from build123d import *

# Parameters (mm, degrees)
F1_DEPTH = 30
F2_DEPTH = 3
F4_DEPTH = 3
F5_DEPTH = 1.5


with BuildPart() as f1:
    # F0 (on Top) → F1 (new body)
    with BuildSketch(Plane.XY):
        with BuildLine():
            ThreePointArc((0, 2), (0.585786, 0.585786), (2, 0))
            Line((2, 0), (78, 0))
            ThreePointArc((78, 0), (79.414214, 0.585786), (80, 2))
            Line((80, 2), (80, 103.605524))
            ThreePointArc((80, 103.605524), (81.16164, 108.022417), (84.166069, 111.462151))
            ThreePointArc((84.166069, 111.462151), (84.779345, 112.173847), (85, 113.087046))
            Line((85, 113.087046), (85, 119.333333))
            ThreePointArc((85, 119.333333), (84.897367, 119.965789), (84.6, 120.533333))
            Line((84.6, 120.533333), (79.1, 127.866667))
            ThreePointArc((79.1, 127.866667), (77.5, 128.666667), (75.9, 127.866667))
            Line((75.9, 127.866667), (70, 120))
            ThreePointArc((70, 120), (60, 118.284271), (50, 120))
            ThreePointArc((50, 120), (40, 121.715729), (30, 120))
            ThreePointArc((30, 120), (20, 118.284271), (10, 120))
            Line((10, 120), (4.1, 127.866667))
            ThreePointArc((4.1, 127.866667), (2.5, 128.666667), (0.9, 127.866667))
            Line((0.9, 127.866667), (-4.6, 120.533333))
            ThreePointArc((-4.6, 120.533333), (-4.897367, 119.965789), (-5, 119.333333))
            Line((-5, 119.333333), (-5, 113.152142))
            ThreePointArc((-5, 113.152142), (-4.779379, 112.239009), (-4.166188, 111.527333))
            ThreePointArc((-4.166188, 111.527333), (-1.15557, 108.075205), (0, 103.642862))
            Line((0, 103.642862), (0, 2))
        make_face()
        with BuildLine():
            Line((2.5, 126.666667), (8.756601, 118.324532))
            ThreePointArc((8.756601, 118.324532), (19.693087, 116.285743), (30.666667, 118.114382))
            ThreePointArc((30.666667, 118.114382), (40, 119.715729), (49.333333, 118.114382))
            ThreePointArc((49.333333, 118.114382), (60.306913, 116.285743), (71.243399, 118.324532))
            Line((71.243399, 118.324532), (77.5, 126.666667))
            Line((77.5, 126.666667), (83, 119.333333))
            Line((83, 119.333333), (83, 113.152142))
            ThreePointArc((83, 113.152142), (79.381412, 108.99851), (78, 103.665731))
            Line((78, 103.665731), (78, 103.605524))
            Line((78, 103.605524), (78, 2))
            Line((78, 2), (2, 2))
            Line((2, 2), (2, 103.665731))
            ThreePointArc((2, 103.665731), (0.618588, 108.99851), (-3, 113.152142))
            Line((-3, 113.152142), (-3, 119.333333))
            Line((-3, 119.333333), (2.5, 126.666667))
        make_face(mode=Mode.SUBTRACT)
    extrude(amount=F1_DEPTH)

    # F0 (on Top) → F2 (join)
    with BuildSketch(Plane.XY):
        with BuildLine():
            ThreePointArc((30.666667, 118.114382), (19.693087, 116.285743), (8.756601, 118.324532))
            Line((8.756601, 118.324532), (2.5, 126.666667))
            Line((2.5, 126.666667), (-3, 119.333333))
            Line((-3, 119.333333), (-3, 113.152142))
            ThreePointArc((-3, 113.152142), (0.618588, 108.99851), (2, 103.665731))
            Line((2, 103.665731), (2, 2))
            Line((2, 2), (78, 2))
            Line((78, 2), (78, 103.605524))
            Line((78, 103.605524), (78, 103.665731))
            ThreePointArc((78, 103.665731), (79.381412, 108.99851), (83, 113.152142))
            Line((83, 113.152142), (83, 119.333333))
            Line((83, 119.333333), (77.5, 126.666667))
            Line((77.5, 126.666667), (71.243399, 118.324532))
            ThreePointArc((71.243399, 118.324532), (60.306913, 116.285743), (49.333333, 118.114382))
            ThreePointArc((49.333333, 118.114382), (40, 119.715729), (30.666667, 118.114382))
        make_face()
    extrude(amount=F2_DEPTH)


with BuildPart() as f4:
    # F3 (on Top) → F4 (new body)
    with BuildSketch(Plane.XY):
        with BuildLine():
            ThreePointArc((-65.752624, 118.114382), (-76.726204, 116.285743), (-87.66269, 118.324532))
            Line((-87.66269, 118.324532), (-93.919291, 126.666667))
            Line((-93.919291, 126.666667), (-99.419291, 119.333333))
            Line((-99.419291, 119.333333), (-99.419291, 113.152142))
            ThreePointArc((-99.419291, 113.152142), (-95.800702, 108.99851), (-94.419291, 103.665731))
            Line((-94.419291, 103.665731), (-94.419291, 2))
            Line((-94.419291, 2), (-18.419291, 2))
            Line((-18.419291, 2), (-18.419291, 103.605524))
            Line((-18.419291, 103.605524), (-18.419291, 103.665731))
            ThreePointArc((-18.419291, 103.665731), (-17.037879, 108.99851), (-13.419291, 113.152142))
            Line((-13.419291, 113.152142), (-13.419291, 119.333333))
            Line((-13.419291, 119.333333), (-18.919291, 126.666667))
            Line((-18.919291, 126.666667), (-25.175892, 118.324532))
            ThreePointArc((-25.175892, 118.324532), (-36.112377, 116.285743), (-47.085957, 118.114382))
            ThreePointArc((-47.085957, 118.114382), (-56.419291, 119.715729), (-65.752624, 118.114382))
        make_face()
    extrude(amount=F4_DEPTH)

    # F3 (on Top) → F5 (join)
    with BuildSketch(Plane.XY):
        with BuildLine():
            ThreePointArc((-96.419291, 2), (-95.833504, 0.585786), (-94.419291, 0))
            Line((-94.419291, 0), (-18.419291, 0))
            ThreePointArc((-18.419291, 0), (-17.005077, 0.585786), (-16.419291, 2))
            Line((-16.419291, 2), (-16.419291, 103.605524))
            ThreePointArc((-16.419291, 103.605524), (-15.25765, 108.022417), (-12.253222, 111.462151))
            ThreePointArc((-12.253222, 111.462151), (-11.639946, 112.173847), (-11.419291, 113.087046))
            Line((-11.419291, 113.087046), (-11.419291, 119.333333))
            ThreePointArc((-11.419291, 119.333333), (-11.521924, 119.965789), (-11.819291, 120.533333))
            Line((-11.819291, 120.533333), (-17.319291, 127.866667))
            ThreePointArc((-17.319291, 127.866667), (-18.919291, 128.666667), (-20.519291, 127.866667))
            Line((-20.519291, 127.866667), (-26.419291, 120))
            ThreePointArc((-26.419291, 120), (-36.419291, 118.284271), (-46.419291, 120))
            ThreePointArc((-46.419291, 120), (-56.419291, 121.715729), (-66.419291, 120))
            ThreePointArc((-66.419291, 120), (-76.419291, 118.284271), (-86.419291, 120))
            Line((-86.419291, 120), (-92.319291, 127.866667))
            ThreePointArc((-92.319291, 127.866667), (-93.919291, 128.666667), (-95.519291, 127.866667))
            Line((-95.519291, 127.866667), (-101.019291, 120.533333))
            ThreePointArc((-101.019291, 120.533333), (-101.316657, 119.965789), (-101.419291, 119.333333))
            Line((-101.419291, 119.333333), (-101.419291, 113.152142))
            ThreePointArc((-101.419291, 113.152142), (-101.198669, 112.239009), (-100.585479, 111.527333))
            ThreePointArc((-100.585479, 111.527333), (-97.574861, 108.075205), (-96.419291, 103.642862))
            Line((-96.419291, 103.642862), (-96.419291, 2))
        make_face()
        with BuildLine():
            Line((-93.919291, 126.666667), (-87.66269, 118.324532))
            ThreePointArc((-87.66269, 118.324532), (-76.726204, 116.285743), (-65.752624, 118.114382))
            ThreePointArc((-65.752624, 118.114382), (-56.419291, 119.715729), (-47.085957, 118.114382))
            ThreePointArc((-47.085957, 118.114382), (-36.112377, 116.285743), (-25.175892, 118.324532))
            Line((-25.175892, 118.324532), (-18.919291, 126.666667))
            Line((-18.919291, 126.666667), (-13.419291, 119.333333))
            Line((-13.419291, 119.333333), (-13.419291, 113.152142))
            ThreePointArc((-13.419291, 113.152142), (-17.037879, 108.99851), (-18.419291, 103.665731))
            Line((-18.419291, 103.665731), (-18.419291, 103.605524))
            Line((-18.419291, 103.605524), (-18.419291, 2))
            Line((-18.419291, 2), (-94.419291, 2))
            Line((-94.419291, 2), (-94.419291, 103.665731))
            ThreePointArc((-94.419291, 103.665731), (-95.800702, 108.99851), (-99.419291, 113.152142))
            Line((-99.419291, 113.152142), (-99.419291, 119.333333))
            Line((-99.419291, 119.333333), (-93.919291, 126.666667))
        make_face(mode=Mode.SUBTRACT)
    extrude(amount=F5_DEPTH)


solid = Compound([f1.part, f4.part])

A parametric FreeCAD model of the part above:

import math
import FreeCAD as App
import Part
import Sketcher

V = App.Vector

doc = App.newDocument("Part")
body = doc.addObject("PartDesign::Body", "Body")

sketch1 = body.newObject("Sketcher::SketchObject", "Sketch")
sketch1.AttachmentSupport = (doc.getObject("XY_Plane"), [""])
sketch1.MapMode = "FlatFace"
sketch1.addGeometry(Part.ArcOfCircle(Part.Circle(V(1.999999, 1.999999, 0), V(0, 0, 1), 1.999999), math.radians(179.999957), math.radians(270.000043)), False)
sketch1.addGeometry(Part.LineSegment(V(2, 0, 0), V(78, 0, 0)), False)
sketch1.addGeometry(Part.ArcOfCircle(Part.Circle(V(78.000001, 1.999999, 0), V(0, 0, 1), 1.999999), math.radians(-90.000043), math.radians(0.000043)), False)
sketch1.addGeometry(Part.LineSegment(V(80, 2, 0), V(80, 103.605524, 0)), False)
sketch1.addGeometry(Part.ArcOfCircle(Part.Circle(V(89.996412, 103.337676, 0), V(0, 0, 1), 10), math.radians(125.664244), math.radians(178.46516)), False)
sketch1.addGeometry(Part.ArcOfCircle(Part.Circle(V(83.000001, 113.087045, 0), V(0, 0, 1), 1.999999), math.radians(-54.335762), math.radians(0.000026)), False)
sketch1.addGeometry(Part.LineSegment(V(85, 113.087046, 0), V(85, 119.333333, 0)), False)
sketch1.addGeometry(Part.ArcOfCircle(Part.Circle(V(83.00001, 119.333336, 0), V(0, 0, 1), 1.99999), math.radians(-0.000094), math.radians(36.869991)), False)
sketch1.addGeometry(Part.LineSegment(V(84.6, 120.533333, 0), V(79.1, 127.866667, 0)), False)
sketch1.addGeometry(Part.ArcOfCircle(Part.Circle(V(77.5, 126.666667, 0), V(0, 0, 1), 2), math.radians(36.869898), math.radians(143.130102)), False)
sketch1.addGeometry(Part.LineSegment(V(75.9, 127.866667, 0), V(70, 120, 0)), False)
sketch1.addGeometry(Part.ArcOfCircle(Part.Circle(V(60, 148.284267, 0), V(0, 0, 1), 29.999996), math.radians(-109.471223), math.radians(-70.528777)), False)
sketch1.addGeometry(Part.ArcOfCircle(Part.Circle(V(40, 91.715733, 0), V(0, 0, 1), 29.999996), math.radians(70.528777), math.radians(109.471223)), False)
sketch1.addGeometry(Part.ArcOfCircle(Part.Circle(V(20, 148.284267, 0), V(0, 0, 1), 29.999996), math.radians(-109.471223), math.radians(-70.528777)), False)
sketch1.addGeometry(Part.LineSegment(V(10, 120, 0), V(4.1, 127.866667, 0)), False)
sketch1.addGeometry(Part.ArcOfCircle(Part.Circle(V(2.5, 126.666667, 0), V(0, 0, 1), 2), math.radians(36.869898), math.radians(143.130102)), False)
sketch1.addGeometry(Part.LineSegment(V(0.9, 127.866667, 0), V(-4.6, 120.533333, 0)), False)
sketch1.addGeometry(Part.ArcOfCircle(Part.Circle(V(-3.00001, 119.333336, 0), V(0, 0, 1), 1.99999), math.radians(143.130009), math.radians(180.000094)), False)
sketch1.addGeometry(Part.LineSegment(V(-5, 119.333333, 0), V(-5, 113.152142, 0)), False)
sketch1.addGeometry(Part.ArcOfCircle(Part.Circle(V(-3.000004, 113.15214, 0), V(0, 0, 1), 1.999996), math.radians(179.999946), math.radians(234.331612)), False)
sketch1.addGeometry(Part.ArcOfCircle(Part.Circle(V(-9.997132, 103.403286, 0), V(0, 0, 1), 10.000003), math.radians(1.3728), math.radians(54.331527)), False)
sketch1.addGeometry(Part.LineSegment(V(0, 103.642862, 0), V(0, 2, 0)), False)
sketch1.addGeometry(Part.LineSegment(V(-3, 119.333333, 0), V(2.5, 126.666667, 0)), False)
sketch1.addGeometry(Part.LineSegment(V(2.5, 126.666667, 0), V(8.756601, 118.324532, 0)), False)
sketch1.addGeometry(Part.ArcOfCircle(Part.Circle(V(20, 148.28427, 0), V(0, 0, 1), 31.999999), math.radians(-110.570291), math.radians(-70.528778)), False)
sketch1.addGeometry(Part.ArcOfCircle(Part.Circle(V(40, 91.715734, 0), V(0, 0, 1), 27.999995), math.radians(70.528777), math.radians(109.471223)), False)
sketch1.addGeometry(Part.ArcOfCircle(Part.Circle(V(60, 148.28427, 0), V(0, 0, 1), 31.999999), math.radians(-109.471222), math.radians(-69.429709)), False)
sketch1.addGeometry(Part.LineSegment(V(71.243399, 118.324532, 0), V(77.5, 126.666667, 0)), False)
sketch1.addGeometry(Part.LineSegment(V(77.5, 126.666667, 0), V(83, 119.333333, 0)), False)
sketch1.addGeometry(Part.LineSegment(V(83, 119.333333, 0), V(83, 113.152142, 0)), False)
sketch1.addGeometry(Part.ArcOfCircle(Part.Circle(V(89.997135, 103.403284, 0), V(0, 0, 1), 12.000005), math.radians(125.668477), math.radians(178.746809)), False)
sketch1.addGeometry(Part.LineSegment(V(78, 103.665731, 0), V(78, 2, 0)), False)
sketch1.addGeometry(Part.LineSegment(V(78, 2, 0), V(2, 2, 0)), False)
sketch1.addGeometry(Part.LineSegment(V(2, 2, 0), V(2, 103.665731, 0)), False)
sketch1.addGeometry(Part.ArcOfCircle(Part.Circle(V(-9.997135, 103.403284, 0), V(0, 0, 1), 12.000005), math.radians(1.253191), math.radians(54.331523)), False)
sketch1.addGeometry(Part.LineSegment(V(-3, 113.152142, 0), V(-3, 119.333333, 0)), False)
sketch1.addConstraint(Sketcher.Constraint("Tangent", 0, 2, 1, 1))
sketch1.addConstraint(Sketcher.Constraint("Tangent", 1, 2, 2, 1))
sketch1.addConstraint(Sketcher.Constraint("Tangent", 2, 2, 3, 1))
sketch1.addConstraint(Sketcher.Constraint("Coincident", 3, 2, 4, 2))
sketch1.addConstraint(Sketcher.Constraint("Tangent", 4, 1, 5, 1))
sketch1.addConstraint(Sketcher.Constraint("Tangent", 5, 2, 6, 1))
sketch1.addConstraint(Sketcher.Constraint("Tangent", 6, 2, 7, 1))
sketch1.addConstraint(Sketcher.Constraint("Tangent", 7, 2, 8, 1))
sketch1.addConstraint(Sketcher.Constraint("Tangent", 8, 2, 9, 1))
sketch1.addConstraint(Sketcher.Constraint("Tangent", 9, 2, 10, 1))
sketch1.addConstraint(Sketcher.Constraint("Coincident", 10, 2, 11, 2))
sketch1.addConstraint(Sketcher.Constraint("Tangent", 11, 1, 12, 1))
sketch1.addConstraint(Sketcher.Constraint("Tangent", 12, 2, 13, 2))
sketch1.addConstraint(Sketcher.Constraint("Coincident", 13, 1, 14, 1))
sketch1.addConstraint(Sketcher.Constraint("Tangent", 14, 2, 15, 1))
sketch1.addConstraint(Sketcher.Constraint("Tangent", 15, 2, 16, 1))
sketch1.addConstraint(Sketcher.Constraint("Tangent", 16, 2, 17, 1))
sketch1.addConstraint(Sketcher.Constraint("Tangent", 17, 2, 18, 1))
sketch1.addConstraint(Sketcher.Constraint("Tangent", 18, 2, 19, 1))
sketch1.addConstraint(Sketcher.Constraint("Tangent", 19, 2, 20, 2))
sketch1.addConstraint(Sketcher.Constraint("Coincident", 20, 1, 21, 1))
sketch1.addConstraint(Sketcher.Constraint("Tangent", 21, 2, 0, 1))
sketch1.addConstraint(Sketcher.Constraint("Coincident", 22, 2, 23, 1))
sketch1.addConstraint(Sketcher.Constraint("Coincident", 23, 2, 24, 1))
sketch1.addConstraint(Sketcher.Constraint("Tangent", 24, 2, 25, 2))
sketch1.addConstraint(Sketcher.Constraint("Tangent", 25, 1, 26, 1))
sketch1.addConstraint(Sketcher.Constraint("Coincident", 26, 2, 27, 1))
sketch1.addConstraint(Sketcher.Constraint("Coincident", 27, 2, 28, 1))
sketch1.addConstraint(Sketcher.Constraint("Coincident", 28, 2, 29, 1))
sketch1.addConstraint(Sketcher.Constraint("Coincident", 29, 2, 30, 1))
sketch1.addConstraint(Sketcher.Constraint("Coincident", 30, 2, 31, 1))
sketch1.addConstraint(Sketcher.Constraint("Coincident", 31, 2, 32, 1))
sketch1.addConstraint(Sketcher.Constraint("Coincident", 32, 2, 33, 1))
sketch1.addConstraint(Sketcher.Constraint("Coincident", 33, 2, 34, 1))
sketch1.addConstraint(Sketcher.Constraint("Coincident", 34, 2, 35, 1))
sketch1.addConstraint(Sketcher.Constraint("Coincident", 35, 2, 22, 1))
sketch1.addConstraint(Sketcher.Constraint("Horizontal", 1))
sketch1.addConstraint(Sketcher.Constraint("Vertical", 3))
sketch1.addConstraint(Sketcher.Constraint("Vertical", 6))
sketch1.addConstraint(Sketcher.Constraint("Vertical", 18))
sketch1.addConstraint(Sketcher.Constraint("Vertical", 21))
sketch1.addConstraint(Sketcher.Constraint("Vertical", 29))
sketch1.addConstraint(Sketcher.Constraint("Vertical", 31))
sketch1.addConstraint(Sketcher.Constraint("Horizontal", 32))
sketch1.addConstraint(Sketcher.Constraint("Vertical", 33))
sketch1.addConstraint(Sketcher.Constraint("Vertical", 35))
sketch1.addConstraint(Sketcher.Constraint("Coincident", 24, 3, 13, 3))
sketch1.addConstraint(Sketcher.Constraint("Coincident", 25, 3, 12, 3))
sketch1.addConstraint(Sketcher.Constraint("Coincident", 26, 3, 11, 3))
sketch1.addConstraint(Sketcher.Constraint("Coincident", 34, 3, 20, 3))
sketch1.addConstraint(Sketcher.Constraint("Coincident", 22, 2, 15, 3))
sketch1.addConstraint(Sketcher.Constraint("Coincident", 27, 2, 9, 3))
sketch1.addConstraint(Sketcher.Constraint("Coincident", 31, 2, 2, 3))
sketch1.addConstraint(Sketcher.Constraint("Coincident", 32, 2, 0, 3))
sketch1.addConstraint(Sketcher.Constraint("Coincident", 34, 2, 19, 3))
sketch1.addConstraint(Sketcher.Constraint("Equal", 2, 5))
sketch1.addConstraint(Sketcher.Constraint("Equal", 5, 9))
sketch1.addConstraint(Sketcher.Constraint("Equal", 11, 12))
sketch1.addConstraint(Sketcher.Constraint("Equal", 12, 13))
sketch1.addConstraint(Sketcher.Constraint("Equal", 9, 15))
sketch1.addConstraint(Sketcher.Constraint("Equal", 7, 17))
sketch1.addConstraint(Sketcher.Constraint("Equal", 30, 34))
sketch1.addConstraint(Sketcher.Constraint("PointOnObject", 0, 2, -1))
sketch1.addConstraint(Sketcher.Constraint("PointOnObject", 20, 1, -2))
sketch1.addConstraint(Sketcher.Constraint("Parallel", 8, 14))
sketch1.addConstraint(Sketcher.Constraint("Parallel", 10, 16))
sketch1.addConstraint(Sketcher.Constraint("Parallel", 16, 22))
sketch1.addConstraint(Sketcher.Constraint("Parallel", 14, 23))
sketch1.addConstraint(Sketcher.Constraint("Parallel", 22, 27))
sketch1.addConstraint(Sketcher.Constraint("Parallel", 23, 28))
sketch1.addConstraint(Sketcher.Constraint("Horizontal", 11, 3, 13, 3))
sketch1.addConstraint(Sketcher.Constraint("Horizontal", 9, 3, 15, 3))
sketch1.addConstraint(Sketcher.Constraint("Horizontal", 7, 3, 17, 3))
sketch1.addConstraint(Sketcher.Constraint("Horizontal", 20, 3, 30, 3))
sketch1.addConstraint(Sketcher.Constraint("Horizontal", 8, 2, 9, 2))
sketch1.addConstraint(Sketcher.Constraint("Horizontal", 10, 2, 11, 1))
sketch1.addConstraint(Sketcher.Constraint("Horizontal", 12, 2, 13, 1))
sketch1.addConstraint(Sketcher.Constraint("Horizontal", 17, 2, 28, 2))
sketch1.addConstraint(Sketcher.Constraint("Horizontal", 18, 2, 29, 2))
sketch1.addConstraint(Sketcher.Constraint("Horizontal", 30, 2, 33, 2))
sketch1.addConstraint(Sketcher.Constraint("Horizontal", 28, 2, 35, 2))
sketch1.addConstraint(Sketcher.Constraint("Vertical", 5, 3, 28, 2))
sketch1.addConstraint(Sketcher.Constraint("Radius", 0, 1.999999))
sketch1.addConstraint(Sketcher.Constraint("Radius", 4, 10.0))
sketch1.addConstraint(Sketcher.Constraint("Radius", 24, 31.999999))
sketch1.addConstraint(Sketcher.Constraint("DistanceX", 1, 1, 1, 2, 76.0))
sketch1.addConstraint(Sketcher.Constraint("DistanceX", -1, 1, 5, 3, 83.000001))
sketch1.addConstraint(Sketcher.Constraint("DistanceX", -1, 1, 11, 3, 60.0))
sketch1.addConstraint(Sketcher.Constraint("DistanceY", -1, 1, 10, 2, 120.0))
sketch1.addConstraint(Sketcher.Constraint("DistanceX", 15, 3, 9, 3, 75.0))
sketch1.addConstraint(Sketcher.Constraint("DistanceX", -1, 1, 7, 2, 84.6))
sketch1.addConstraint(Sketcher.Constraint("Radius", 11, 29.999996))
sketch1.addConstraint(Sketcher.Constraint("Radius", 20, 10.000003))
sketch1.addConstraint(Sketcher.Constraint("DistanceY", 19, 2, 17, 2, 7.806))
sketch1.addConstraint(Sketcher.Constraint("DistanceY", 21, 2, 21, 1, 101.642862))
sketch1.addConstraint(Sketcher.Constraint("DistanceY", 3, 1, 3, 2, 101.605524))
sketch1.addConstraint(Sketcher.Constraint("DistanceY", 6, 1, 6, 2, 6.246287))
pad1 = body.newObject("PartDesign::Pad", "Pad")
pad1.Profile = sketch1
pad1.Length = 30

sketch2 = body.newObject("Sketcher::SketchObject", "Sketch001")
sketch2.AttachmentSupport = (doc.getObject("XY_Plane"), [""])
sketch2.MapMode = "FlatFace"
sketch2.addGeometry(Part.ArcOfCircle(Part.Circle(V(20, 148.28427, 0), V(0, 0, 1), 31.999999), math.radians(-110.570291), math.radians(-70.528778)), False)
sketch2.addGeometry(Part.LineSegment(V(8.756601, 118.324532, 0), V(2.5, 126.666667, 0)), False)
sketch2.addGeometry(Part.LineSegment(V(2.5, 126.666667, 0), V(-3, 119.333333, 0)), False)
sketch2.addGeometry(Part.LineSegment(V(-3, 119.333333, 0), V(-3, 113.152142, 0)), False)
sketch2.addGeometry(Part.ArcOfCircle(Part.Circle(V(-9.997135, 103.403284, 0), V(0, 0, 1), 12.000005), math.radians(1.253191), math.radians(54.331523)), False)
sketch2.addGeometry(Part.LineSegment(V(2, 103.665731, 0), V(2, 2, 0)), False)
sketch2.addGeometry(Part.LineSegment(V(2, 2, 0), V(78, 2, 0)), False)
sketch2.addGeometry(Part.LineSegment(V(78, 2, 0), V(78, 103.665731, 0)), False)
sketch2.addGeometry(Part.ArcOfCircle(Part.Circle(V(89.997135, 103.403284, 0), V(0, 0, 1), 12.000005), math.radians(125.668477), math.radians(178.746809)), False)
sketch2.addGeometry(Part.LineSegment(V(83, 113.152142, 0), V(83, 119.333333, 0)), False)
sketch2.addGeometry(Part.LineSegment(V(83, 119.333333, 0), V(77.5, 126.666667, 0)), False)
sketch2.addGeometry(Part.LineSegment(V(77.5, 126.666667, 0), V(71.243399, 118.324532, 0)), False)
sketch2.addGeometry(Part.ArcOfCircle(Part.Circle(V(60, 148.28427, 0), V(0, 0, 1), 31.999999), math.radians(-109.471222), math.radians(-69.429709)), False)
sketch2.addGeometry(Part.ArcOfCircle(Part.Circle(V(40, 91.715734, 0), V(0, 0, 1), 27.999995), math.radians(70.528777), math.radians(109.471223)), False)
sketch2.addConstraint(Sketcher.Constraint("Coincident", 0, 1, 1, 1))
sketch2.addConstraint(Sketcher.Constraint("Coincident", 1, 2, 2, 1))
sketch2.addConstraint(Sketcher.Constraint("Coincident", 2, 2, 3, 1))
sketch2.addConstraint(Sketcher.Constraint("Coincident", 3, 2, 4, 2))
sketch2.addConstraint(Sketcher.Constraint("Coincident", 4, 1, 5, 1))
sketch2.addConstraint(Sketcher.Constraint("Coincident", 5, 2, 6, 1))
sketch2.addConstraint(Sketcher.Constraint("Coincident", 6, 2, 7, 1))
sketch2.addConstraint(Sketcher.Constraint("Coincident", 7, 2, 8, 2))
sketch2.addConstraint(Sketcher.Constraint("Coincident", 8, 1, 9, 1))
sketch2.addConstraint(Sketcher.Constraint("Coincident", 9, 2, 10, 1))
sketch2.addConstraint(Sketcher.Constraint("Coincident", 10, 2, 11, 1))
sketch2.addConstraint(Sketcher.Constraint("Coincident", 11, 2, 12, 2))
sketch2.addConstraint(Sketcher.Constraint("Tangent", 12, 1, 13, 1))
sketch2.addConstraint(Sketcher.Constraint("Tangent", 13, 2, 0, 2))
sketch2.addConstraint(Sketcher.Constraint("Vertical", 3))
sketch2.addConstraint(Sketcher.Constraint("Vertical", 5))
sketch2.addConstraint(Sketcher.Constraint("Horizontal", 6))
sketch2.addConstraint(Sketcher.Constraint("Vertical", 7))
sketch2.addConstraint(Sketcher.Constraint("Vertical", 9))
sketch2.addConstraint(Sketcher.Constraint("Equal", 4, 8))
sketch2.addConstraint(Sketcher.Constraint("Equal", 0, 12))
sketch2.addConstraint(Sketcher.Constraint("Parallel", 1, 10))
sketch2.addConstraint(Sketcher.Constraint("Parallel", 2, 11))
sketch2.addConstraint(Sketcher.Constraint("Horizontal", 4, 3, 8, 3))
sketch2.addConstraint(Sketcher.Constraint("Horizontal", 0, 3, 12, 3))
sketch2.addConstraint(Sketcher.Constraint("Horizontal", 4, 1, 7, 2))
sketch2.addConstraint(Sketcher.Constraint("Horizontal", 3, 2, 8, 1))
sketch2.addConstraint(Sketcher.Constraint("Horizontal", 2, 2, 9, 2))
sketch2.addConstraint(Sketcher.Constraint("Horizontal", 1, 2, 10, 2))
sketch2.addConstraint(Sketcher.Constraint("Horizontal", 0, 1, 11, 2))
sketch2.addConstraint(Sketcher.Constraint("Equal", 2, 10))
sketch2.addConstraint(Sketcher.Constraint("Radius", 0, 31.999999))
sketch2.addConstraint(Sketcher.Constraint("DistanceX", 6, 1, 6, 2, 76.0))
sketch2.addConstraint(Sketcher.Constraint("DistanceX", -1, 1, 0, 3, 20.0))
sketch2.addConstraint(Sketcher.Constraint("DistanceX", -1, 1, 12, 3, 60.0))
sketch2.addConstraint(Sketcher.Constraint("DistanceX", 2, 2, -1, 1, 3.0))
sketch2.addConstraint(Sketcher.Constraint("DistanceY", -1, 1, 5, 2, 2.0))
sketch2.addConstraint(Sketcher.Constraint("DistanceX", -1, 1, 1, 2, 2.5))
sketch2.addConstraint(Sketcher.Constraint("Radius", 4, 12.000005))
sketch2.addConstraint(Sketcher.Constraint("Radius", 13, 27.999995))
sketch2.addConstraint(Sketcher.Constraint("DistanceY", 3, 2, 3, 1, 6.181191))
sketch2.addConstraint(Sketcher.Constraint("DistanceY", 5, 2, 5, 1, 101.665731))
sketch2.addConstraint(Sketcher.Constraint("DistanceX", -1, 1, 0, 1, 8.756601))
sketch2.addConstraint(Sketcher.Constraint("DistanceY", 0, 1, 2, 2, 1.008801))
sketch2.addConstraint(Sketcher.Constraint("DistanceY", 4, 1, 0, 1, 14.658801))
pad2 = body.newObject("PartDesign::Pad", "Pad001")
pad2.Profile = sketch2
pad2.Length = 3
body2 = doc.addObject("PartDesign::Body", "Body001")

sketch3 = body2.newObject("Sketcher::SketchObject", "Sketch002")
sketch3.AttachmentSupport = (doc.getObject("XY_Plane001"), [""])
sketch3.MapMode = "FlatFace"
sketch3.addGeometry(Part.ArcOfCircle(Part.Circle(V(-76.419291, 148.28427, 0), V(0, 0, 1), 31.999999), math.radians(-110.570291), math.radians(-70.528778)), False)
sketch3.addGeometry(Part.LineSegment(V(-87.66269, 118.324532, 0), V(-93.919291, 126.666667, 0)), False)
sketch3.addGeometry(Part.LineSegment(V(-93.919291, 126.666667, 0), V(-99.419291, 119.333333, 0)), False)
sketch3.addGeometry(Part.LineSegment(V(-99.419291, 119.333333, 0), V(-99.419291, 113.152142, 0)), False)
sketch3.addGeometry(Part.ArcOfCircle(Part.Circle(V(-106.416419, 103.403288, 0), V(0, 0, 1), 11.999998), math.radians(1.253173), math.radians(54.331541)), False)
sketch3.addGeometry(Part.LineSegment(V(-94.419291, 103.665731, 0), V(-94.419291, 2, 0)), False)
sketch3.addGeometry(Part.LineSegment(V(-94.419291, 2, 0), V(-18.419291, 2, 0)), False)
sketch3.addGeometry(Part.LineSegment(V(-18.419291, 2, 0), V(-18.419291, 103.665731, 0)), False)
sketch3.addGeometry(Part.ArcOfCircle(Part.Circle(V(-6.422156, 103.403284, 0), V(0, 0, 1), 12.000005), math.radians(125.668477), math.radians(178.746809)), False)
sketch3.addGeometry(Part.LineSegment(V(-13.419291, 113.152142, 0), V(-13.419291, 119.333333, 0)), False)
sketch3.addGeometry(Part.LineSegment(V(-13.419291, 119.333333, 0), V(-18.919291, 126.666667, 0)), False)
sketch3.addGeometry(Part.LineSegment(V(-18.919291, 126.666667, 0), V(-25.175892, 118.324532, 0)), False)
sketch3.addGeometry(Part.ArcOfCircle(Part.Circle(V(-36.419291, 148.284267, 0), V(0, 0, 1), 31.999996), math.radians(-109.471223), math.radians(-69.429708)), False)
sketch3.addGeometry(Part.ArcOfCircle(Part.Circle(V(-56.419291, 91.715731, 0), V(0, 0, 1), 27.999998), math.radians(70.528778), math.radians(109.471222)), False)
sketch3.addConstraint(Sketcher.Constraint("Coincident", 0, 1, 1, 1))
sketch3.addConstraint(Sketcher.Constraint("Coincident", 1, 2, 2, 1))
sketch3.addConstraint(Sketcher.Constraint("Coincident", 2, 2, 3, 1))
sketch3.addConstraint(Sketcher.Constraint("Coincident", 3, 2, 4, 2))
sketch3.addConstraint(Sketcher.Constraint("Coincident", 4, 1, 5, 1))
sketch3.addConstraint(Sketcher.Constraint("Coincident", 5, 2, 6, 1))
sketch3.addConstraint(Sketcher.Constraint("Coincident", 6, 2, 7, 1))
sketch3.addConstraint(Sketcher.Constraint("Coincident", 7, 2, 8, 2))
sketch3.addConstraint(Sketcher.Constraint("Coincident", 8, 1, 9, 1))
sketch3.addConstraint(Sketcher.Constraint("Coincident", 9, 2, 10, 1))
sketch3.addConstraint(Sketcher.Constraint("Coincident", 10, 2, 11, 1))
sketch3.addConstraint(Sketcher.Constraint("Coincident", 11, 2, 12, 2))
sketch3.addConstraint(Sketcher.Constraint("Tangent", 12, 1, 13, 1))
sketch3.addConstraint(Sketcher.Constraint("Tangent", 13, 2, 0, 2))
sketch3.addConstraint(Sketcher.Constraint("Vertical", 3))
sketch3.addConstraint(Sketcher.Constraint("Vertical", 5))
sketch3.addConstraint(Sketcher.Constraint("Horizontal", 6))
sketch3.addConstraint(Sketcher.Constraint("Vertical", 7))
sketch3.addConstraint(Sketcher.Constraint("Vertical", 9))
sketch3.addConstraint(Sketcher.Constraint("Parallel", 1, 10))
sketch3.addConstraint(Sketcher.Constraint("Parallel", 2, 11))
sketch3.addConstraint(Sketcher.Constraint("Horizontal", 4, 1, 7, 2))
sketch3.addConstraint(Sketcher.Constraint("Horizontal", 3, 2, 8, 1))
sketch3.addConstraint(Sketcher.Constraint("Horizontal", 2, 2, 9, 2))
sketch3.addConstraint(Sketcher.Constraint("Horizontal", 1, 2, 10, 2))
sketch3.addConstraint(Sketcher.Constraint("Horizontal", 0, 1, 11, 2))
sketch3.addConstraint(Sketcher.Constraint("Horizontal", 12, 1, 13, 2))
sketch3.addConstraint(Sketcher.Constraint("Equal", 2, 10))
sketch3.addConstraint(Sketcher.Constraint("Radius", 0, 31.999999))
sketch3.addConstraint(Sketcher.Constraint("Radius", 13, 27.999998))
sketch3.addConstraint(Sketcher.Constraint("DistanceX", 6, 1, 6, 2, 76.0))
sketch3.addConstraint(Sketcher.Constraint("DistanceY", -1, 1, 5, 2, 2.0))
sketch3.addConstraint(Sketcher.Constraint("DistanceX", 0, 3, 12, 3, 40.0))
sketch3.addConstraint(Sketcher.Constraint("DistanceX", 13, 3, 12, 3, 20.0))
sketch3.addConstraint(Sketcher.Constraint("DistanceX", 2, 2, 0, 3, 23.0))
sketch3.addConstraint(Sketcher.Constraint("DistanceX", 3, 2, 4, 1, 5.0))
sketch3.addConstraint(Sketcher.Constraint("DistanceX", 1, 2, 0, 3, 17.5))
sketch3.addConstraint(Sketcher.Constraint("DistanceY", 13, 3, 7, 2, 11.95))
sketch3.addConstraint(Sketcher.Constraint("Radius", 4, 11.999998))
sketch3.addConstraint(Sketcher.Constraint("Radius", 8, 12.000005))
sketch3.addConstraint(Sketcher.Constraint("DistanceY", 3, 2, 3, 1, 6.181191))
sketch3.addConstraint(Sketcher.Constraint("DistanceY", 5, 2, 5, 1, 101.665731))
sketch3.addConstraint(Sketcher.Constraint("DistanceX", 0, 1, 0, 3, 11.243399))
sketch3.addConstraint(Sketcher.Constraint("DistanceY", 1, 2, 12, 3, 21.6176))
sketch3.addConstraint(Sketcher.Constraint("DistanceX", 0, 3, -1, 1, 76.419291))
pad3 = body2.newObject("PartDesign::Pad", "Pad002")
pad3.Profile = sketch3
pad3.Length = 3

sketch4 = body2.newObject("Sketcher::SketchObject", "Sketch003")
sketch4.AttachmentSupport = (doc.getObject("XY_Plane001"), [""])
sketch4.MapMode = "FlatFace"
sketch4.addGeometry(Part.ArcOfCircle(Part.Circle(V(-94.419291, 2, 0), V(0, 0, 1), 2), math.radians(-179.999994), math.radians(-90.000006)), False)
sketch4.addGeometry(Part.LineSegment(V(-94.419291, 0, 0), V(-18.419291, 0, 0)), False)
sketch4.addGeometry(Part.ArcOfCircle(Part.Circle(V(-18.41929, 1.999999, 0), V(0, 0, 1), 1.999999), math.radians(-90.000043), math.radians(0.000043)), False)
sketch4.addGeometry(Part.LineSegment(V(-16.419291, 2, 0), V(-16.419291, 103.605524, 0)), False)
sketch4.addGeometry(Part.ArcOfCircle(Part.Circle(V(-6.422872, 103.337672, 0), V(0, 0, 1), 10.000007), math.radians(125.664266), math.radians(178.465138)), False)
sketch4.addGeometry(Part.ArcOfCircle(Part.Circle(V(-13.41929, 113.087045, 0), V(0, 0, 1), 1.999999), math.radians(-54.335762), math.radians(0.000026)), False)
sketch4.addGeometry(Part.LineSegment(V(-11.419291, 113.087046, 0), V(-11.419291, 119.333333, 0)), False)
sketch4.addGeometry(Part.ArcOfCircle(Part.Circle(V(-13.419281, 119.333336, 0), V(0, 0, 1), 1.99999), math.radians(-0.000094), math.radians(36.869991)), False)
sketch4.addGeometry(Part.LineSegment(V(-11.819291, 120.533333, 0), V(-17.319291, 127.866667, 0)), False)
sketch4.addGeometry(Part.ArcOfCircle(Part.Circle(V(-18.919291, 126.666667, 0), V(0, 0, 1), 2), math.radians(36.869898), math.radians(143.130102)), False)
sketch4.addGeometry(Part.LineSegment(V(-20.519291, 127.866667, 0), V(-26.419291, 120, 0)), False)
sketch4.addGeometry(Part.ArcOfCircle(Part.Circle(V(-36.419291, 148.284267, 0), V(0, 0, 1), 29.999996), math.radians(-109.471223), math.radians(-70.528777)), False)
sketch4.addGeometry(Part.ArcOfCircle(Part.Circle(V(-56.419291, 91.715733, 0), V(0, 0, 1), 29.999996), math.radians(70.528777), math.radians(109.471223)), False)
sketch4.addGeometry(Part.ArcOfCircle(Part.Circle(V(-76.419291, 148.284267, 0), V(0, 0, 1), 29.999996), math.radians(-109.471223), math.radians(-70.528777)), False)
sketch4.addGeometry(Part.LineSegment(V(-86.419291, 120, 0), V(-92.319291, 127.866667, 0)), False)
sketch4.addGeometry(Part.ArcOfCircle(Part.Circle(V(-93.919291, 126.666667, 0), V(0, 0, 1), 2), math.radians(36.869898), math.radians(143.130102)), False)
sketch4.addGeometry(Part.LineSegment(V(-95.519291, 127.866667, 0), V(-101.019291, 120.533333, 0)), False)
sketch4.addGeometry(Part.ArcOfCircle(Part.Circle(V(-99.419283, 119.33333, 0), V(0, 0, 1), 2.000008), math.radians(143.130176), math.radians(179.999926)), False)
sketch4.addGeometry(Part.LineSegment(V(-101.419291, 119.333333, 0), V(-101.419291, 113.152142, 0)), False)
sketch4.addGeometry(Part.ArcOfCircle(Part.Circle(V(-99.419288, 113.152144, 0), V(0, 0, 1), 2.000003), math.radians(-179.999949), math.radians(-125.668494)), False)
sketch4.addGeometry(Part.ArcOfCircle(Part.Circle(V(-106.416423, 103.403286, 0), V(0, 0, 1), 10.000003), math.radians(1.3728), math.radians(54.331527)), False)
sketch4.addGeometry(Part.LineSegment(V(-96.419291, 103.642862, 0), V(-96.419291, 2, 0)), False)
sketch4.addGeometry(Part.LineSegment(V(-99.419291, 119.333333, 0), V(-93.919291, 126.666667, 0)), False)
sketch4.addGeometry(Part.LineSegment(V(-93.919291, 126.666667, 0), V(-87.66269, 118.324532, 0)), False)
sketch4.addGeometry(Part.ArcOfCircle(Part.Circle(V(-76.419291, 148.28427, 0), V(0, 0, 1), 31.999999), math.radians(-110.570291), math.radians(-70.528778)), False)
sketch4.addGeometry(Part.ArcOfCircle(Part.Circle(V(-56.419291, 91.715731, 0), V(0, 0, 1), 27.999998), math.radians(70.528778), math.radians(109.471222)), False)
sketch4.addGeometry(Part.ArcOfCircle(Part.Circle(V(-36.419291, 148.284267, 0), V(0, 0, 1), 31.999996), math.radians(-109.471223), math.radians(-69.429708)), False)
sketch4.addGeometry(Part.LineSegment(V(-25.175892, 118.324532, 0), V(-18.919291, 126.666667, 0)), False)
sketch4.addGeometry(Part.LineSegment(V(-18.919291, 126.666667, 0), V(-13.419291, 119.333333, 0)), False)
sketch4.addGeometry(Part.LineSegment(V(-13.419291, 119.333333, 0), V(-13.419291, 113.152142, 0)), False)
sketch4.addGeometry(Part.ArcOfCircle(Part.Circle(V(-6.422156, 103.403284, 0), V(0, 0, 1), 12.000005), math.radians(125.668477), math.radians(178.746809)), False)
sketch4.addGeometry(Part.LineSegment(V(-18.419291, 103.665731, 0), V(-18.419291, 2, 0)), False)
sketch4.addGeometry(Part.LineSegment(V(-18.419291, 2, 0), V(-94.419291, 2, 0)), False)
sketch4.addGeometry(Part.LineSegment(V(-94.419291, 2, 0), V(-94.419291, 103.665731, 0)), False)
sketch4.addGeometry(Part.ArcOfCircle(Part.Circle(V(-106.416419, 103.403288, 0), V(0, 0, 1), 11.999998), math.radians(1.253173), math.radians(54.331541)), False)
sketch4.addGeometry(Part.LineSegment(V(-99.419291, 113.152142, 0), V(-99.419291, 119.333333, 0)), False)
sketch4.addConstraint(Sketcher.Constraint("Tangent", 0, 2, 1, 1))
sketch4.addConstraint(Sketcher.Constraint("Tangent", 1, 2, 2, 1))
sketch4.addConstraint(Sketcher.Constraint("Tangent", 2, 2, 3, 1))
sketch4.addConstraint(Sketcher.Constraint("Coincident", 3, 2, 4, 2))
sketch4.addConstraint(Sketcher.Constraint("Tangent", 4, 1, 5, 1))
sketch4.addConstraint(Sketcher.Constraint("Tangent", 5, 2, 6, 1))
sketch4.addConstraint(Sketcher.Constraint("Tangent", 6, 2, 7, 1))
sketch4.addConstraint(Sketcher.Constraint("Tangent", 7, 2, 8, 1))
sketch4.addConstraint(Sketcher.Constraint("Tangent", 8, 2, 9, 1))
sketch4.addConstraint(Sketcher.Constraint("Tangent", 9, 2, 10, 1))
sketch4.addConstraint(Sketcher.Constraint("Coincident", 10, 2, 11, 2))
sketch4.addConstraint(Sketcher.Constraint("Tangent", 11, 1, 12, 1))
sketch4.addConstraint(Sketcher.Constraint("Tangent", 12, 2, 13, 2))
sketch4.addConstraint(Sketcher.Constraint("Coincident", 13, 1, 14, 1))
sketch4.addConstraint(Sketcher.Constraint("Tangent", 14, 2, 15, 1))
sketch4.addConstraint(Sketcher.Constraint("Tangent", 15, 2, 16, 1))
sketch4.addConstraint(Sketcher.Constraint("Tangent", 16, 2, 17, 1))
sketch4.addConstraint(Sketcher.Constraint("Tangent", 17, 2, 18, 1))
sketch4.addConstraint(Sketcher.Constraint("Tangent", 18, 2, 19, 1))
sketch4.addConstraint(Sketcher.Constraint("Tangent", 19, 2, 20, 2))
sketch4.addConstraint(Sketcher.Constraint("Coincident", 20, 1, 21, 1))
sketch4.addConstraint(Sketcher.Constraint("Tangent", 21, 2, 0, 1))
sketch4.addConstraint(Sketcher.Constraint("Coincident", 22, 2, 23, 1))
sketch4.addConstraint(Sketcher.Constraint("Coincident", 23, 2, 24, 1))
sketch4.addConstraint(Sketcher.Constraint("Tangent", 24, 2, 25, 2))
sketch4.addConstraint(Sketcher.Constraint("Tangent", 25, 1, 26, 1))
sketch4.addConstraint(Sketcher.Constraint("Coincident", 26, 2, 27, 1))
sketch4.addConstraint(Sketcher.Constraint("Coincident", 27, 2, 28, 1))
sketch4.addConstraint(Sketcher.Constraint("Coincident", 28, 2, 29, 1))
sketch4.addConstraint(Sketcher.Constraint("Coincident", 29, 2, 30, 1))
sketch4.addConstraint(Sketcher.Constraint("Coincident", 30, 2, 31, 1))
sketch4.addConstraint(Sketcher.Constraint("Coincident", 31, 2, 32, 1))
sketch4.addConstraint(Sketcher.Constraint("Coincident", 32, 2, 33, 1))
sketch4.addConstraint(Sketcher.Constraint("Coincident", 33, 2, 34, 1))
sketch4.addConstraint(Sketcher.Constraint("Coincident", 34, 2, 35, 1))
sketch4.addConstraint(Sketcher.Constraint("Coincident", 35, 2, 22, 1))
sketch4.addConstraint(Sketcher.Constraint("Horizontal", 1))
sketch4.addConstraint(Sketcher.Constraint("Vertical", 3))
sketch4.addConstraint(Sketcher.Constraint("Vertical", 6))
sketch4.addConstraint(Sketcher.Constraint("Vertical", 18))
sketch4.addConstraint(Sketcher.Constraint("Vertical", 21))
sketch4.addConstraint(Sketcher.Constraint("Vertical", 29))
sketch4.addConstraint(Sketcher.Constraint("Vertical", 31))
sketch4.addConstraint(Sketcher.Constraint("Horizontal", 32))
sketch4.addConstraint(Sketcher.Constraint("Vertical", 33))
sketch4.addConstraint(Sketcher.Constraint("Vertical", 35))
sketch4.addConstraint(Sketcher.Constraint("Coincident", 24, 3, 13, 3))
sketch4.addConstraint(Sketcher.Constraint("Coincident", 25, 3, 12, 3))
sketch4.addConstraint(Sketcher.Constraint("Coincident", 26, 3, 11, 3))
sketch4.addConstraint(Sketcher.Constraint("Coincident", 34, 3, 20, 3))
sketch4.addConstraint(Sketcher.Constraint("Coincident", 22, 2, 15, 3))
sketch4.addConstraint(Sketcher.Constraint("Coincident", 27, 2, 9, 3))
sketch4.addConstraint(Sketcher.Constraint("Coincident", 31, 2, 2, 3))
sketch4.addConstraint(Sketcher.Constraint("Coincident", 32, 2, 0, 3))
sketch4.addConstraint(Sketcher.Constraint("Coincident", 34, 2, 19, 3))
sketch4.addConstraint(Sketcher.Constraint("Coincident", 35, 2, 17, 3))
sketch4.addConstraint(Sketcher.Constraint("Equal", 2, 5))
sketch4.addConstraint(Sketcher.Constraint("Equal", 5, 9))
sketch4.addConstraint(Sketcher.Constraint("Equal", 11, 12))
sketch4.addConstraint(Sketcher.Constraint("Equal", 12, 13))
sketch4.addConstraint(Sketcher.Constraint("Equal", 9, 15))
sketch4.addConstraint(Sketcher.Constraint("PointOnObject", 0, 2, -1))
sketch4.addConstraint(Sketcher.Constraint("Parallel", 8, 14))
sketch4.addConstraint(Sketcher.Constraint("Parallel", 10, 16))
sketch4.addConstraint(Sketcher.Constraint("Parallel", 16, 22))
sketch4.addConstraint(Sketcher.Constraint("Parallel", 14, 23))
sketch4.addConstraint(Sketcher.Constraint("Parallel", 22, 27))
sketch4.addConstraint(Sketcher.Constraint("Parallel", 23, 28))
sketch4.addConstraint(Sketcher.Constraint("Horizontal", 11, 3, 13, 3))
sketch4.addConstraint(Sketcher.Constraint("Horizontal", 9, 3, 15, 3))
sketch4.addConstraint(Sketcher.Constraint("Horizontal", 20, 3, 30, 3))
sketch4.addConstraint(Sketcher.Constraint("Horizontal", 8, 2, 9, 2))
sketch4.addConstraint(Sketcher.Constraint("Horizontal", 10, 2, 11, 1))
sketch4.addConstraint(Sketcher.Constraint("Horizontal", 12, 2, 13, 1))
sketch4.addConstraint(Sketcher.Constraint("Horizontal", 7, 2, 16, 2))
sketch4.addConstraint(Sketcher.Constraint("Horizontal", 6, 2, 17, 2))
sketch4.addConstraint(Sketcher.Constraint("Horizontal", 17, 2, 28, 2))
sketch4.addConstraint(Sketcher.Constraint("Horizontal", 18, 2, 29, 2))
sketch4.addConstraint(Sketcher.Constraint("Horizontal", 30, 2, 33, 2))
sketch4.addConstraint(Sketcher.Constraint("Radius", 0, 2.0))
sketch4.addConstraint(Sketcher.Constraint("Radius", 24, 31.999999))
sketch4.addConstraint(Sketcher.Constraint("Radius", 25, 27.999998))
sketch4.addConstraint(Sketcher.Constraint("DistanceX", 1, 1, 1, 2, 76.0))
sketch4.addConstraint(Sketcher.Constraint("DistanceY", -1, 1, 10, 2, 120.0))
sketch4.addConstraint(Sketcher.Constraint("DistanceX", 2, 3, 5, 3, 5.0))
sketch4.addConstraint(Sketcher.Constraint("DistanceX", 11, 3, 5, 3, 23.000001))
sketch4.addConstraint(Sketcher.Constraint("DistanceX", 12, 3, 5, 3, 43.000001))
sketch4.addConstraint(Sketcher.Constraint("DistanceX", 15, 3, 9, 3, 75.0))
sketch4.addConstraint(Sketcher.Constraint("DistanceX", 7, 2, 6, 2, 0.4))
sketch4.addConstraint(Sketcher.Constraint("Radius", 4, 10.000007))
sketch4.addConstraint(Sketcher.Constraint("Radius", 20, 10.000003))
sketch4.addConstraint(Sketcher.Constraint("DistanceY", 19, 2, 17, 2, 7.806))
sketch4.addConstraint(Sketcher.Constraint("DistanceY", 21, 2, 21, 1, 101.642862))
sketch4.addConstraint(Sketcher.Constraint("DistanceY", 3, 1, 3, 2, 101.605524))
sketch4.addConstraint(Sketcher.Constraint("DistanceY", 6, 1, 6, 2, 6.246287))
sketch4.addConstraint(Sketcher.Constraint("DistanceX", 0, 3, -1, 1, 94.419291))
pad4 = body2.newObject("PartDesign::Pad", "Pad003")
pad4.Profile = sketch4
pad4.Length = 1.5

doc.recompute()
